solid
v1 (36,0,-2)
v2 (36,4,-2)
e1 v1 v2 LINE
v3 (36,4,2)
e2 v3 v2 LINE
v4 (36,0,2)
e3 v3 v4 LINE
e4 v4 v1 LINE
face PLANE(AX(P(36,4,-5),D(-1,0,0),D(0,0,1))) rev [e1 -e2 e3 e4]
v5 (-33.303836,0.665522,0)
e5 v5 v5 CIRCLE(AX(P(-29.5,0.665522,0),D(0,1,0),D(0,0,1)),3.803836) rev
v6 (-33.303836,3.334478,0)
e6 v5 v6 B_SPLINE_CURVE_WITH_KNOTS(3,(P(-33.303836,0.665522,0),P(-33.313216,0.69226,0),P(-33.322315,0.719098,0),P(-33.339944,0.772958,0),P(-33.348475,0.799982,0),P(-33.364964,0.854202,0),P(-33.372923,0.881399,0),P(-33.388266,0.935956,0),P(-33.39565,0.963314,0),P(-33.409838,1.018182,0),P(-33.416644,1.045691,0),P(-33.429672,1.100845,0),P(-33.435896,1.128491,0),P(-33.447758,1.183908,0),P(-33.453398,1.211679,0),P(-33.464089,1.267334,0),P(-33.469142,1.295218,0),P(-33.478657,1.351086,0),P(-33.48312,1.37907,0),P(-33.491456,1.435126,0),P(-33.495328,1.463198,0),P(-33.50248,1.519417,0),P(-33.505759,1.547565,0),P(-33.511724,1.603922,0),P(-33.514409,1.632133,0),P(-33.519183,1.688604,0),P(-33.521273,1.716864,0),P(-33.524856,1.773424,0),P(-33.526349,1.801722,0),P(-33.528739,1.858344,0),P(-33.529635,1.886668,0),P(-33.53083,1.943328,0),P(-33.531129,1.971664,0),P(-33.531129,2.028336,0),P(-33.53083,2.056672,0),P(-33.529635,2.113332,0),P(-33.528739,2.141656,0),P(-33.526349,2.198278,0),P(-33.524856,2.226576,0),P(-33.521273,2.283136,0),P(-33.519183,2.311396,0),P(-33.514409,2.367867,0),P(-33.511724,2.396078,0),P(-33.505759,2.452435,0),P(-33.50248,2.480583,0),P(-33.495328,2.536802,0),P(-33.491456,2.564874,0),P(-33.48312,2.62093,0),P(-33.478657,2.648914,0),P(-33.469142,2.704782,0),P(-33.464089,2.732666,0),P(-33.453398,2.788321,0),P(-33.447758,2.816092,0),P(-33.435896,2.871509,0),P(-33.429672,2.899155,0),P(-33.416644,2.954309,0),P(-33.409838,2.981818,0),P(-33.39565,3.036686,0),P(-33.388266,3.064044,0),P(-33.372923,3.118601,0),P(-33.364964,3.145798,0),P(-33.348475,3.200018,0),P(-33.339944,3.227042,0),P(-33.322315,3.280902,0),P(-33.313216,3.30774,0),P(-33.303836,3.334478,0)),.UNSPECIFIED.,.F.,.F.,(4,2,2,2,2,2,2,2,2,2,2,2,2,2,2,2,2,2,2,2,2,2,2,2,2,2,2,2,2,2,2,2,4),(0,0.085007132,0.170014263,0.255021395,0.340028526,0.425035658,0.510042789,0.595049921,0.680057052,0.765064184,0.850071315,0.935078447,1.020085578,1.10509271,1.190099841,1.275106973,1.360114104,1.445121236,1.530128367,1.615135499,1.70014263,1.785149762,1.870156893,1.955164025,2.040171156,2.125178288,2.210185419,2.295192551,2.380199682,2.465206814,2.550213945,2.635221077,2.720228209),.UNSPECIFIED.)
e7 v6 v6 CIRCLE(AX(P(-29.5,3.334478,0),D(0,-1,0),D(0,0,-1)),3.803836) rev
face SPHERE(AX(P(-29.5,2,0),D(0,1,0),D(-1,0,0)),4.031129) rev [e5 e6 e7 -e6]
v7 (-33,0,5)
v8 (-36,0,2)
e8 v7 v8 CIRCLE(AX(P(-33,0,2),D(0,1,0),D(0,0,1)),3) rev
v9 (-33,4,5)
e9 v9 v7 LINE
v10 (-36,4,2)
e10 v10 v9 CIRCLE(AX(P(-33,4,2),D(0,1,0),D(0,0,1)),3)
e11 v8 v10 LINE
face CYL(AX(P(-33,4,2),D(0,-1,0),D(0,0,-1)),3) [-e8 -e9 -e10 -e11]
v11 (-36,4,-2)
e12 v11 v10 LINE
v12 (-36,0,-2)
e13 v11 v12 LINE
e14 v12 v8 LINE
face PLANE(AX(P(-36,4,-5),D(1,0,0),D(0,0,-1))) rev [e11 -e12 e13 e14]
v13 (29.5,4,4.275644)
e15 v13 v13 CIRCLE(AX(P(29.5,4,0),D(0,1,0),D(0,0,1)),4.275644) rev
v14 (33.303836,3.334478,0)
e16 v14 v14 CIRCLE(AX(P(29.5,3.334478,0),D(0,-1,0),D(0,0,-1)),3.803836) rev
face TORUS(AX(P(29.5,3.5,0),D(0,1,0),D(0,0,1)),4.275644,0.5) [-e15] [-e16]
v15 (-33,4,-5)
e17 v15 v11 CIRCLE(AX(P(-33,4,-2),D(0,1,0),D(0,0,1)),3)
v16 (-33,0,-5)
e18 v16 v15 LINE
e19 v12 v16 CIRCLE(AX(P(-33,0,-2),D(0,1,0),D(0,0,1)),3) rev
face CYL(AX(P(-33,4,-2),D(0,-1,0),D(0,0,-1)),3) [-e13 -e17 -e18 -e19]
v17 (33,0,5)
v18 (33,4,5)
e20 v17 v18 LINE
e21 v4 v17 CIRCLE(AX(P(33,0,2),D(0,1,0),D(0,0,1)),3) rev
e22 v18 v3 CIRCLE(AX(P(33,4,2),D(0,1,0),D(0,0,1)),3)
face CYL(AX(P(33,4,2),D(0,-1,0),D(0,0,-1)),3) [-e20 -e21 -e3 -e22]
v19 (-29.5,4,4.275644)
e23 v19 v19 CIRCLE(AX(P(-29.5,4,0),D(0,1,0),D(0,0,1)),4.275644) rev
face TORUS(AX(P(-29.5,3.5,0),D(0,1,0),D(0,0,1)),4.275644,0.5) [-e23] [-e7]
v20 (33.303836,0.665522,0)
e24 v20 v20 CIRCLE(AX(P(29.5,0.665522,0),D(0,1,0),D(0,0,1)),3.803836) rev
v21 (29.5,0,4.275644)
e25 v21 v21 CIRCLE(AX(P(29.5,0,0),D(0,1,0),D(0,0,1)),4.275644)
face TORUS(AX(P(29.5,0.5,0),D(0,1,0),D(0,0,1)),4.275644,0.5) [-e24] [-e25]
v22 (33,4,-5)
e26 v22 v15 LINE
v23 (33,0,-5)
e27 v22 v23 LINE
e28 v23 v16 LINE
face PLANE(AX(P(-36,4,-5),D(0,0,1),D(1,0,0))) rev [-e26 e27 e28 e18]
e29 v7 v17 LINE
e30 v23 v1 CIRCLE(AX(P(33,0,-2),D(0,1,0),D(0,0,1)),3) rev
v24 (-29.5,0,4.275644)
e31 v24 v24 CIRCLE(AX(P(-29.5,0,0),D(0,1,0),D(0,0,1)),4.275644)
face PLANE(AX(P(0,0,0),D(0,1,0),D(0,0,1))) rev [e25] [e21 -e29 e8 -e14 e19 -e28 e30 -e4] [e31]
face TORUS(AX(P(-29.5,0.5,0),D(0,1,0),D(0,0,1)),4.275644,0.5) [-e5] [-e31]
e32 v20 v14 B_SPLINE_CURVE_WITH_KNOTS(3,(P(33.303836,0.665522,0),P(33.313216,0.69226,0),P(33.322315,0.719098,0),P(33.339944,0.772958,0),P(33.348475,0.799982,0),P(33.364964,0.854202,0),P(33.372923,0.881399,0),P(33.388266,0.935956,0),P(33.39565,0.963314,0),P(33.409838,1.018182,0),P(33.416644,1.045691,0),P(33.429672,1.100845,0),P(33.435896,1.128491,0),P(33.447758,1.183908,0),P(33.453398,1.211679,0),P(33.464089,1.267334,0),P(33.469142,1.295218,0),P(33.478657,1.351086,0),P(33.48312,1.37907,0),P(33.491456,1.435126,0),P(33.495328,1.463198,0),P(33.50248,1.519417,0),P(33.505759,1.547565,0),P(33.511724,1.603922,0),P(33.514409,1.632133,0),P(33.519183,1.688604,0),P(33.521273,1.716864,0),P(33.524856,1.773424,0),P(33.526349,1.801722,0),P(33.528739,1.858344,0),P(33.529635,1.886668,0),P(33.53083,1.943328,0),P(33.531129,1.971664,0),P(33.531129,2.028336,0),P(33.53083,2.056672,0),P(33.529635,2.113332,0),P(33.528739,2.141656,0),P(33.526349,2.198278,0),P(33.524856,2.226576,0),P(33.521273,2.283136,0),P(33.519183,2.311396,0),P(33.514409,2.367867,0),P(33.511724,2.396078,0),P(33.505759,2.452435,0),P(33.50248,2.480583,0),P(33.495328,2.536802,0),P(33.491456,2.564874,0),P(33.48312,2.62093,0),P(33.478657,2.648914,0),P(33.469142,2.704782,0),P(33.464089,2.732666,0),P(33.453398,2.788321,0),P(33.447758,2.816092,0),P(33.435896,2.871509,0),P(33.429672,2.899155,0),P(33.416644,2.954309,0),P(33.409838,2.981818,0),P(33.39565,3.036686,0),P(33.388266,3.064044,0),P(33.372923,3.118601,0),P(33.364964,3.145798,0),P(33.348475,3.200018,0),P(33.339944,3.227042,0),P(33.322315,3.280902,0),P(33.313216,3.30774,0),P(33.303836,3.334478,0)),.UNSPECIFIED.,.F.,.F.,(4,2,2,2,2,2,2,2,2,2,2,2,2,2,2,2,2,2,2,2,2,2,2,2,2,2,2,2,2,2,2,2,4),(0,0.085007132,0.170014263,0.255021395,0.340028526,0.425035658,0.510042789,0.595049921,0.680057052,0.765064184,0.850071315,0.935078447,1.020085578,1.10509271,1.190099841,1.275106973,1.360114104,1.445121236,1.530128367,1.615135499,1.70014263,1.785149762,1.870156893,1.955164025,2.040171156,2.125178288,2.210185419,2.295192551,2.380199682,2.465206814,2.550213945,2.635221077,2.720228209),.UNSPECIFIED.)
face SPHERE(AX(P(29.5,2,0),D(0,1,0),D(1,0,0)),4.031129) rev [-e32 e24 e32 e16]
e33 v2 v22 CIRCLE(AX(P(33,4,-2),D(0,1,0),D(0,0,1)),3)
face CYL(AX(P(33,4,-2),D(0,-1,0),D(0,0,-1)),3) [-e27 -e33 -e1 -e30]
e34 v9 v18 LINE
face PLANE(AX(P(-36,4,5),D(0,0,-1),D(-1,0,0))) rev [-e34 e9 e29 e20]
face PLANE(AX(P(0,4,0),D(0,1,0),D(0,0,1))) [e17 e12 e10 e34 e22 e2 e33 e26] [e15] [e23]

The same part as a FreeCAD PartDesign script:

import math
import FreeCAD as App
import Part
import Sketcher


def edges_at(feature, points):
    """Names of the edges that pass closest to the given points."""
    edges = feature.Shape.Edges
    near = lambda p: min(range(len(edges)), key=lambda i: edges[i].distToShape(Part.Vertex(*p))[0])
    return sorted({f"Edge{near(p) + 1}" for p in points})

doc = App.newDocument("Part")
params = doc.addObject("Spreadsheet::Sheet", "Params")
for row, (alias, value) in enumerate([
    ("sketch1_width", "72 mm"),
    ("sketch1_height", "10 mm"),
    ("pad1_length", "4 mm"),
    ("sketch2_height", "4 mm"),
    ("sketch2_width", "3.5 mm"),
    ("groove_angle", "360 deg"),
    ("fillet_radius", "3 mm"),
    ("fillet2_radius", "0.5 mm"),
], start=1):
    params.set(f"A{row}", alias)
    params.set(f"B{row}", "=" + value)
    params.setAlias(f"B{row}", alias)

body = doc.addObject("PartDesign::Body", "Body")

sketch1 = body.newObject("Sketcher::SketchObject", "Sketch")
sketch1.AttachmentSupport = (doc.getObject("XZ_Plane"), [""])
sketch1.MapMode = "FlatFace"
sketch1.addGeometry(Part.LineSegment(App.Vector(-36, -5, 0), App.Vector(-36, 5, 0)), False)
sketch1.addGeometry(Part.LineSegment(App.Vector(-36, 5, 0), App.Vector(36, 5, 0)), False)
sketch1.addGeometry(Part.LineSegment(App.Vector(36, 5, 0), App.Vector(36, -5, 0)), False)
sketch1.addGeometry(Part.LineSegment(App.Vector(36, -5, 0), App.Vector(-36, -5, 0)), False)
sketch1.addConstraint(Sketcher.Constraint("Coincident", 0, 2, 1, 1))
sketch1.addConstraint(Sketcher.Constraint("Coincident", 1, 2, 2, 1))
sketch1.addConstraint(Sketcher.Constraint("Coincident", 2, 2, 3, 1))
sketch1.addConstraint(Sketcher.Constraint("Coincident", 3, 2, 0, 1))
sketch1.addConstraint(Sketcher.Constraint("Vertical", 0))
sketch1.addConstraint(Sketcher.Constraint("Horizontal", 1))
sketch1.addConstraint(Sketcher.Constraint("Vertical", 2))
sketch1.addConstraint(Sketcher.Constraint("Horizontal", 3))
sketch1.addConstraint(Sketcher.Constraint("Symmetric", 0, 2, 2, 2, -1, 1))
sketch1.addConstraint(Sketcher.Constraint("DistanceX", 1, 1, 1, 2, 72.0))
sketch1.addConstraint(Sketcher.Constraint("DistanceY", 0, 1, 0, 2, 10.0))
sketch1.setExpression("Constraints[9]", "Params.sketch1_width")
sketch1.setExpression("Constraints[10]", "Params.sketch1_height")
pad1 = body.newObject("PartDesign::Pad", "Pad")
pad1.Profile = sketch1
pad1.setExpression("Length", "Params.pad1_length")
pad1.Reversed = True

sketch2 = body.newObject("Sketcher::SketchObject", "Sketch001")
sketch2.AttachmentSupport = (doc.getObject("XY_Plane"), [""])
sketch2.MapMode = "FlatFace"
sketch2.addGeometry(Part.LineSegment(App.Vector(-29.5, 0, 0), App.Vector(-29.5, 4, 0)), False)
sketch2.addGeometry(Part.LineSegment(App.Vector(-29.5, 4, 0), App.Vector(-33, 4, 0)), False)
sketch2.addGeometry(Part.ArcOfCircle(Part.Circle(App.Vector(-29.5, 2, 0), App.Vector(0, 0, 1), 4), math.radians(150), math.radians(210)), False)
sketch2.addGeometry(Part.LineSegment(App.Vector(-33, 0, 0), App.Vector(-29.5, 0, 0)), False)
sketch2.addGeometry(Part.LineSegment(App.Vector(-29.5, 4, 0), App.Vector(-29.5, 0, 0)), True)
sketch2.addConstraint(Sketcher.Constraint("Coincident", 0, 2, 1, 1))
sketch2.addConstraint(Sketcher.Constraint("Coincident", 1, 2, 2, 1))
sketch2.addConstraint(Sketcher.Constraint("Coincident", 2, 2, 3, 1))
sketch2.addConstraint(Sketcher.Constraint("Coincident", 3, 2, 0, 1))
sketch2.addConstraint(Sketcher.Constraint("Vertical", 0))
sketch2.addConstraint(Sketcher.Constraint("Horizontal", 1))
sketch2.addConstraint(Sketcher.Constraint("Horizontal", 3))
sketch2.addConstraint(Sketcher.Constraint("Vertical", 4))
sketch2.addConstraint(Sketcher.Constraint("Coincident", 4, 1, 0, 2))
sketch2.addConstraint(Sketcher.Constraint("PointOnObject", 2, 2, -1))
sketch2.addConstraint(Sketcher.Constraint("PointOnObject", 4, 2, -1))
sketch2.addConstraint(Sketcher.Constraint("Vertical", 2, 3, 0, 2))
sketch2.addConstraint(Sketcher.Constraint("Vertical", 1, 2, 2, 2))
sketch2.addConstraint(Sketcher.Constraint("DistanceY", 0, 1, 0, 2, 4.0))
sketch2.addConstraint(Sketcher.Constraint("DistanceX", 1, 2, 1, 1, 3.5))
sketch2.addConstraint(Sketcher.Constraint("DistanceX", 1, 2, -1, 1, 33.0))
sketch2.setExpression("Constraints[13]", "Params.sketch2_height")
sketch2.setExpression("Constraints[14]", "Params.sketch2_width")
groove = body.newObject("PartDesign::Groove", "Groove")
groove.Profile = sketch2
groove.ReferenceAxis = (sketch2, ["Axis0"])
groove.setExpression("Angle", "Params.groove_angle")
doc.recompute()

fillet = body.newObject("PartDesign::Fillet", "Fillet")
fillet.Base = (groove, edges_at(groove, [
    (36, 2, 5),
    (-36, 2, 5),
    (-36, 2, -5),
    (36, 2, -5),
]))
fillet.setExpression("Radius", "Params.fillet_radius")
doc.recompute()

mirrored = body.newObject("PartDesign::Mirrored", "Mirrored")
mirrored.Originals = [groove]
mirrored.MirrorPlane = (doc.getObject("YZ_Plane"), [""])
body.Tip = mirrored
doc.recompute()

fillet2 = body.newObject("PartDesign::Fillet", "Fillet001")
fillet2.Base = (mirrored, edges_at(mirrored, [
    (-26, 4, 0),
    (-26, 0, 0),
    (26, 4, 0),
    (26, 0, 0),
]))
fillet2.setExpression("Radius", "Params.fillet2_radius")

doc.recompute()
